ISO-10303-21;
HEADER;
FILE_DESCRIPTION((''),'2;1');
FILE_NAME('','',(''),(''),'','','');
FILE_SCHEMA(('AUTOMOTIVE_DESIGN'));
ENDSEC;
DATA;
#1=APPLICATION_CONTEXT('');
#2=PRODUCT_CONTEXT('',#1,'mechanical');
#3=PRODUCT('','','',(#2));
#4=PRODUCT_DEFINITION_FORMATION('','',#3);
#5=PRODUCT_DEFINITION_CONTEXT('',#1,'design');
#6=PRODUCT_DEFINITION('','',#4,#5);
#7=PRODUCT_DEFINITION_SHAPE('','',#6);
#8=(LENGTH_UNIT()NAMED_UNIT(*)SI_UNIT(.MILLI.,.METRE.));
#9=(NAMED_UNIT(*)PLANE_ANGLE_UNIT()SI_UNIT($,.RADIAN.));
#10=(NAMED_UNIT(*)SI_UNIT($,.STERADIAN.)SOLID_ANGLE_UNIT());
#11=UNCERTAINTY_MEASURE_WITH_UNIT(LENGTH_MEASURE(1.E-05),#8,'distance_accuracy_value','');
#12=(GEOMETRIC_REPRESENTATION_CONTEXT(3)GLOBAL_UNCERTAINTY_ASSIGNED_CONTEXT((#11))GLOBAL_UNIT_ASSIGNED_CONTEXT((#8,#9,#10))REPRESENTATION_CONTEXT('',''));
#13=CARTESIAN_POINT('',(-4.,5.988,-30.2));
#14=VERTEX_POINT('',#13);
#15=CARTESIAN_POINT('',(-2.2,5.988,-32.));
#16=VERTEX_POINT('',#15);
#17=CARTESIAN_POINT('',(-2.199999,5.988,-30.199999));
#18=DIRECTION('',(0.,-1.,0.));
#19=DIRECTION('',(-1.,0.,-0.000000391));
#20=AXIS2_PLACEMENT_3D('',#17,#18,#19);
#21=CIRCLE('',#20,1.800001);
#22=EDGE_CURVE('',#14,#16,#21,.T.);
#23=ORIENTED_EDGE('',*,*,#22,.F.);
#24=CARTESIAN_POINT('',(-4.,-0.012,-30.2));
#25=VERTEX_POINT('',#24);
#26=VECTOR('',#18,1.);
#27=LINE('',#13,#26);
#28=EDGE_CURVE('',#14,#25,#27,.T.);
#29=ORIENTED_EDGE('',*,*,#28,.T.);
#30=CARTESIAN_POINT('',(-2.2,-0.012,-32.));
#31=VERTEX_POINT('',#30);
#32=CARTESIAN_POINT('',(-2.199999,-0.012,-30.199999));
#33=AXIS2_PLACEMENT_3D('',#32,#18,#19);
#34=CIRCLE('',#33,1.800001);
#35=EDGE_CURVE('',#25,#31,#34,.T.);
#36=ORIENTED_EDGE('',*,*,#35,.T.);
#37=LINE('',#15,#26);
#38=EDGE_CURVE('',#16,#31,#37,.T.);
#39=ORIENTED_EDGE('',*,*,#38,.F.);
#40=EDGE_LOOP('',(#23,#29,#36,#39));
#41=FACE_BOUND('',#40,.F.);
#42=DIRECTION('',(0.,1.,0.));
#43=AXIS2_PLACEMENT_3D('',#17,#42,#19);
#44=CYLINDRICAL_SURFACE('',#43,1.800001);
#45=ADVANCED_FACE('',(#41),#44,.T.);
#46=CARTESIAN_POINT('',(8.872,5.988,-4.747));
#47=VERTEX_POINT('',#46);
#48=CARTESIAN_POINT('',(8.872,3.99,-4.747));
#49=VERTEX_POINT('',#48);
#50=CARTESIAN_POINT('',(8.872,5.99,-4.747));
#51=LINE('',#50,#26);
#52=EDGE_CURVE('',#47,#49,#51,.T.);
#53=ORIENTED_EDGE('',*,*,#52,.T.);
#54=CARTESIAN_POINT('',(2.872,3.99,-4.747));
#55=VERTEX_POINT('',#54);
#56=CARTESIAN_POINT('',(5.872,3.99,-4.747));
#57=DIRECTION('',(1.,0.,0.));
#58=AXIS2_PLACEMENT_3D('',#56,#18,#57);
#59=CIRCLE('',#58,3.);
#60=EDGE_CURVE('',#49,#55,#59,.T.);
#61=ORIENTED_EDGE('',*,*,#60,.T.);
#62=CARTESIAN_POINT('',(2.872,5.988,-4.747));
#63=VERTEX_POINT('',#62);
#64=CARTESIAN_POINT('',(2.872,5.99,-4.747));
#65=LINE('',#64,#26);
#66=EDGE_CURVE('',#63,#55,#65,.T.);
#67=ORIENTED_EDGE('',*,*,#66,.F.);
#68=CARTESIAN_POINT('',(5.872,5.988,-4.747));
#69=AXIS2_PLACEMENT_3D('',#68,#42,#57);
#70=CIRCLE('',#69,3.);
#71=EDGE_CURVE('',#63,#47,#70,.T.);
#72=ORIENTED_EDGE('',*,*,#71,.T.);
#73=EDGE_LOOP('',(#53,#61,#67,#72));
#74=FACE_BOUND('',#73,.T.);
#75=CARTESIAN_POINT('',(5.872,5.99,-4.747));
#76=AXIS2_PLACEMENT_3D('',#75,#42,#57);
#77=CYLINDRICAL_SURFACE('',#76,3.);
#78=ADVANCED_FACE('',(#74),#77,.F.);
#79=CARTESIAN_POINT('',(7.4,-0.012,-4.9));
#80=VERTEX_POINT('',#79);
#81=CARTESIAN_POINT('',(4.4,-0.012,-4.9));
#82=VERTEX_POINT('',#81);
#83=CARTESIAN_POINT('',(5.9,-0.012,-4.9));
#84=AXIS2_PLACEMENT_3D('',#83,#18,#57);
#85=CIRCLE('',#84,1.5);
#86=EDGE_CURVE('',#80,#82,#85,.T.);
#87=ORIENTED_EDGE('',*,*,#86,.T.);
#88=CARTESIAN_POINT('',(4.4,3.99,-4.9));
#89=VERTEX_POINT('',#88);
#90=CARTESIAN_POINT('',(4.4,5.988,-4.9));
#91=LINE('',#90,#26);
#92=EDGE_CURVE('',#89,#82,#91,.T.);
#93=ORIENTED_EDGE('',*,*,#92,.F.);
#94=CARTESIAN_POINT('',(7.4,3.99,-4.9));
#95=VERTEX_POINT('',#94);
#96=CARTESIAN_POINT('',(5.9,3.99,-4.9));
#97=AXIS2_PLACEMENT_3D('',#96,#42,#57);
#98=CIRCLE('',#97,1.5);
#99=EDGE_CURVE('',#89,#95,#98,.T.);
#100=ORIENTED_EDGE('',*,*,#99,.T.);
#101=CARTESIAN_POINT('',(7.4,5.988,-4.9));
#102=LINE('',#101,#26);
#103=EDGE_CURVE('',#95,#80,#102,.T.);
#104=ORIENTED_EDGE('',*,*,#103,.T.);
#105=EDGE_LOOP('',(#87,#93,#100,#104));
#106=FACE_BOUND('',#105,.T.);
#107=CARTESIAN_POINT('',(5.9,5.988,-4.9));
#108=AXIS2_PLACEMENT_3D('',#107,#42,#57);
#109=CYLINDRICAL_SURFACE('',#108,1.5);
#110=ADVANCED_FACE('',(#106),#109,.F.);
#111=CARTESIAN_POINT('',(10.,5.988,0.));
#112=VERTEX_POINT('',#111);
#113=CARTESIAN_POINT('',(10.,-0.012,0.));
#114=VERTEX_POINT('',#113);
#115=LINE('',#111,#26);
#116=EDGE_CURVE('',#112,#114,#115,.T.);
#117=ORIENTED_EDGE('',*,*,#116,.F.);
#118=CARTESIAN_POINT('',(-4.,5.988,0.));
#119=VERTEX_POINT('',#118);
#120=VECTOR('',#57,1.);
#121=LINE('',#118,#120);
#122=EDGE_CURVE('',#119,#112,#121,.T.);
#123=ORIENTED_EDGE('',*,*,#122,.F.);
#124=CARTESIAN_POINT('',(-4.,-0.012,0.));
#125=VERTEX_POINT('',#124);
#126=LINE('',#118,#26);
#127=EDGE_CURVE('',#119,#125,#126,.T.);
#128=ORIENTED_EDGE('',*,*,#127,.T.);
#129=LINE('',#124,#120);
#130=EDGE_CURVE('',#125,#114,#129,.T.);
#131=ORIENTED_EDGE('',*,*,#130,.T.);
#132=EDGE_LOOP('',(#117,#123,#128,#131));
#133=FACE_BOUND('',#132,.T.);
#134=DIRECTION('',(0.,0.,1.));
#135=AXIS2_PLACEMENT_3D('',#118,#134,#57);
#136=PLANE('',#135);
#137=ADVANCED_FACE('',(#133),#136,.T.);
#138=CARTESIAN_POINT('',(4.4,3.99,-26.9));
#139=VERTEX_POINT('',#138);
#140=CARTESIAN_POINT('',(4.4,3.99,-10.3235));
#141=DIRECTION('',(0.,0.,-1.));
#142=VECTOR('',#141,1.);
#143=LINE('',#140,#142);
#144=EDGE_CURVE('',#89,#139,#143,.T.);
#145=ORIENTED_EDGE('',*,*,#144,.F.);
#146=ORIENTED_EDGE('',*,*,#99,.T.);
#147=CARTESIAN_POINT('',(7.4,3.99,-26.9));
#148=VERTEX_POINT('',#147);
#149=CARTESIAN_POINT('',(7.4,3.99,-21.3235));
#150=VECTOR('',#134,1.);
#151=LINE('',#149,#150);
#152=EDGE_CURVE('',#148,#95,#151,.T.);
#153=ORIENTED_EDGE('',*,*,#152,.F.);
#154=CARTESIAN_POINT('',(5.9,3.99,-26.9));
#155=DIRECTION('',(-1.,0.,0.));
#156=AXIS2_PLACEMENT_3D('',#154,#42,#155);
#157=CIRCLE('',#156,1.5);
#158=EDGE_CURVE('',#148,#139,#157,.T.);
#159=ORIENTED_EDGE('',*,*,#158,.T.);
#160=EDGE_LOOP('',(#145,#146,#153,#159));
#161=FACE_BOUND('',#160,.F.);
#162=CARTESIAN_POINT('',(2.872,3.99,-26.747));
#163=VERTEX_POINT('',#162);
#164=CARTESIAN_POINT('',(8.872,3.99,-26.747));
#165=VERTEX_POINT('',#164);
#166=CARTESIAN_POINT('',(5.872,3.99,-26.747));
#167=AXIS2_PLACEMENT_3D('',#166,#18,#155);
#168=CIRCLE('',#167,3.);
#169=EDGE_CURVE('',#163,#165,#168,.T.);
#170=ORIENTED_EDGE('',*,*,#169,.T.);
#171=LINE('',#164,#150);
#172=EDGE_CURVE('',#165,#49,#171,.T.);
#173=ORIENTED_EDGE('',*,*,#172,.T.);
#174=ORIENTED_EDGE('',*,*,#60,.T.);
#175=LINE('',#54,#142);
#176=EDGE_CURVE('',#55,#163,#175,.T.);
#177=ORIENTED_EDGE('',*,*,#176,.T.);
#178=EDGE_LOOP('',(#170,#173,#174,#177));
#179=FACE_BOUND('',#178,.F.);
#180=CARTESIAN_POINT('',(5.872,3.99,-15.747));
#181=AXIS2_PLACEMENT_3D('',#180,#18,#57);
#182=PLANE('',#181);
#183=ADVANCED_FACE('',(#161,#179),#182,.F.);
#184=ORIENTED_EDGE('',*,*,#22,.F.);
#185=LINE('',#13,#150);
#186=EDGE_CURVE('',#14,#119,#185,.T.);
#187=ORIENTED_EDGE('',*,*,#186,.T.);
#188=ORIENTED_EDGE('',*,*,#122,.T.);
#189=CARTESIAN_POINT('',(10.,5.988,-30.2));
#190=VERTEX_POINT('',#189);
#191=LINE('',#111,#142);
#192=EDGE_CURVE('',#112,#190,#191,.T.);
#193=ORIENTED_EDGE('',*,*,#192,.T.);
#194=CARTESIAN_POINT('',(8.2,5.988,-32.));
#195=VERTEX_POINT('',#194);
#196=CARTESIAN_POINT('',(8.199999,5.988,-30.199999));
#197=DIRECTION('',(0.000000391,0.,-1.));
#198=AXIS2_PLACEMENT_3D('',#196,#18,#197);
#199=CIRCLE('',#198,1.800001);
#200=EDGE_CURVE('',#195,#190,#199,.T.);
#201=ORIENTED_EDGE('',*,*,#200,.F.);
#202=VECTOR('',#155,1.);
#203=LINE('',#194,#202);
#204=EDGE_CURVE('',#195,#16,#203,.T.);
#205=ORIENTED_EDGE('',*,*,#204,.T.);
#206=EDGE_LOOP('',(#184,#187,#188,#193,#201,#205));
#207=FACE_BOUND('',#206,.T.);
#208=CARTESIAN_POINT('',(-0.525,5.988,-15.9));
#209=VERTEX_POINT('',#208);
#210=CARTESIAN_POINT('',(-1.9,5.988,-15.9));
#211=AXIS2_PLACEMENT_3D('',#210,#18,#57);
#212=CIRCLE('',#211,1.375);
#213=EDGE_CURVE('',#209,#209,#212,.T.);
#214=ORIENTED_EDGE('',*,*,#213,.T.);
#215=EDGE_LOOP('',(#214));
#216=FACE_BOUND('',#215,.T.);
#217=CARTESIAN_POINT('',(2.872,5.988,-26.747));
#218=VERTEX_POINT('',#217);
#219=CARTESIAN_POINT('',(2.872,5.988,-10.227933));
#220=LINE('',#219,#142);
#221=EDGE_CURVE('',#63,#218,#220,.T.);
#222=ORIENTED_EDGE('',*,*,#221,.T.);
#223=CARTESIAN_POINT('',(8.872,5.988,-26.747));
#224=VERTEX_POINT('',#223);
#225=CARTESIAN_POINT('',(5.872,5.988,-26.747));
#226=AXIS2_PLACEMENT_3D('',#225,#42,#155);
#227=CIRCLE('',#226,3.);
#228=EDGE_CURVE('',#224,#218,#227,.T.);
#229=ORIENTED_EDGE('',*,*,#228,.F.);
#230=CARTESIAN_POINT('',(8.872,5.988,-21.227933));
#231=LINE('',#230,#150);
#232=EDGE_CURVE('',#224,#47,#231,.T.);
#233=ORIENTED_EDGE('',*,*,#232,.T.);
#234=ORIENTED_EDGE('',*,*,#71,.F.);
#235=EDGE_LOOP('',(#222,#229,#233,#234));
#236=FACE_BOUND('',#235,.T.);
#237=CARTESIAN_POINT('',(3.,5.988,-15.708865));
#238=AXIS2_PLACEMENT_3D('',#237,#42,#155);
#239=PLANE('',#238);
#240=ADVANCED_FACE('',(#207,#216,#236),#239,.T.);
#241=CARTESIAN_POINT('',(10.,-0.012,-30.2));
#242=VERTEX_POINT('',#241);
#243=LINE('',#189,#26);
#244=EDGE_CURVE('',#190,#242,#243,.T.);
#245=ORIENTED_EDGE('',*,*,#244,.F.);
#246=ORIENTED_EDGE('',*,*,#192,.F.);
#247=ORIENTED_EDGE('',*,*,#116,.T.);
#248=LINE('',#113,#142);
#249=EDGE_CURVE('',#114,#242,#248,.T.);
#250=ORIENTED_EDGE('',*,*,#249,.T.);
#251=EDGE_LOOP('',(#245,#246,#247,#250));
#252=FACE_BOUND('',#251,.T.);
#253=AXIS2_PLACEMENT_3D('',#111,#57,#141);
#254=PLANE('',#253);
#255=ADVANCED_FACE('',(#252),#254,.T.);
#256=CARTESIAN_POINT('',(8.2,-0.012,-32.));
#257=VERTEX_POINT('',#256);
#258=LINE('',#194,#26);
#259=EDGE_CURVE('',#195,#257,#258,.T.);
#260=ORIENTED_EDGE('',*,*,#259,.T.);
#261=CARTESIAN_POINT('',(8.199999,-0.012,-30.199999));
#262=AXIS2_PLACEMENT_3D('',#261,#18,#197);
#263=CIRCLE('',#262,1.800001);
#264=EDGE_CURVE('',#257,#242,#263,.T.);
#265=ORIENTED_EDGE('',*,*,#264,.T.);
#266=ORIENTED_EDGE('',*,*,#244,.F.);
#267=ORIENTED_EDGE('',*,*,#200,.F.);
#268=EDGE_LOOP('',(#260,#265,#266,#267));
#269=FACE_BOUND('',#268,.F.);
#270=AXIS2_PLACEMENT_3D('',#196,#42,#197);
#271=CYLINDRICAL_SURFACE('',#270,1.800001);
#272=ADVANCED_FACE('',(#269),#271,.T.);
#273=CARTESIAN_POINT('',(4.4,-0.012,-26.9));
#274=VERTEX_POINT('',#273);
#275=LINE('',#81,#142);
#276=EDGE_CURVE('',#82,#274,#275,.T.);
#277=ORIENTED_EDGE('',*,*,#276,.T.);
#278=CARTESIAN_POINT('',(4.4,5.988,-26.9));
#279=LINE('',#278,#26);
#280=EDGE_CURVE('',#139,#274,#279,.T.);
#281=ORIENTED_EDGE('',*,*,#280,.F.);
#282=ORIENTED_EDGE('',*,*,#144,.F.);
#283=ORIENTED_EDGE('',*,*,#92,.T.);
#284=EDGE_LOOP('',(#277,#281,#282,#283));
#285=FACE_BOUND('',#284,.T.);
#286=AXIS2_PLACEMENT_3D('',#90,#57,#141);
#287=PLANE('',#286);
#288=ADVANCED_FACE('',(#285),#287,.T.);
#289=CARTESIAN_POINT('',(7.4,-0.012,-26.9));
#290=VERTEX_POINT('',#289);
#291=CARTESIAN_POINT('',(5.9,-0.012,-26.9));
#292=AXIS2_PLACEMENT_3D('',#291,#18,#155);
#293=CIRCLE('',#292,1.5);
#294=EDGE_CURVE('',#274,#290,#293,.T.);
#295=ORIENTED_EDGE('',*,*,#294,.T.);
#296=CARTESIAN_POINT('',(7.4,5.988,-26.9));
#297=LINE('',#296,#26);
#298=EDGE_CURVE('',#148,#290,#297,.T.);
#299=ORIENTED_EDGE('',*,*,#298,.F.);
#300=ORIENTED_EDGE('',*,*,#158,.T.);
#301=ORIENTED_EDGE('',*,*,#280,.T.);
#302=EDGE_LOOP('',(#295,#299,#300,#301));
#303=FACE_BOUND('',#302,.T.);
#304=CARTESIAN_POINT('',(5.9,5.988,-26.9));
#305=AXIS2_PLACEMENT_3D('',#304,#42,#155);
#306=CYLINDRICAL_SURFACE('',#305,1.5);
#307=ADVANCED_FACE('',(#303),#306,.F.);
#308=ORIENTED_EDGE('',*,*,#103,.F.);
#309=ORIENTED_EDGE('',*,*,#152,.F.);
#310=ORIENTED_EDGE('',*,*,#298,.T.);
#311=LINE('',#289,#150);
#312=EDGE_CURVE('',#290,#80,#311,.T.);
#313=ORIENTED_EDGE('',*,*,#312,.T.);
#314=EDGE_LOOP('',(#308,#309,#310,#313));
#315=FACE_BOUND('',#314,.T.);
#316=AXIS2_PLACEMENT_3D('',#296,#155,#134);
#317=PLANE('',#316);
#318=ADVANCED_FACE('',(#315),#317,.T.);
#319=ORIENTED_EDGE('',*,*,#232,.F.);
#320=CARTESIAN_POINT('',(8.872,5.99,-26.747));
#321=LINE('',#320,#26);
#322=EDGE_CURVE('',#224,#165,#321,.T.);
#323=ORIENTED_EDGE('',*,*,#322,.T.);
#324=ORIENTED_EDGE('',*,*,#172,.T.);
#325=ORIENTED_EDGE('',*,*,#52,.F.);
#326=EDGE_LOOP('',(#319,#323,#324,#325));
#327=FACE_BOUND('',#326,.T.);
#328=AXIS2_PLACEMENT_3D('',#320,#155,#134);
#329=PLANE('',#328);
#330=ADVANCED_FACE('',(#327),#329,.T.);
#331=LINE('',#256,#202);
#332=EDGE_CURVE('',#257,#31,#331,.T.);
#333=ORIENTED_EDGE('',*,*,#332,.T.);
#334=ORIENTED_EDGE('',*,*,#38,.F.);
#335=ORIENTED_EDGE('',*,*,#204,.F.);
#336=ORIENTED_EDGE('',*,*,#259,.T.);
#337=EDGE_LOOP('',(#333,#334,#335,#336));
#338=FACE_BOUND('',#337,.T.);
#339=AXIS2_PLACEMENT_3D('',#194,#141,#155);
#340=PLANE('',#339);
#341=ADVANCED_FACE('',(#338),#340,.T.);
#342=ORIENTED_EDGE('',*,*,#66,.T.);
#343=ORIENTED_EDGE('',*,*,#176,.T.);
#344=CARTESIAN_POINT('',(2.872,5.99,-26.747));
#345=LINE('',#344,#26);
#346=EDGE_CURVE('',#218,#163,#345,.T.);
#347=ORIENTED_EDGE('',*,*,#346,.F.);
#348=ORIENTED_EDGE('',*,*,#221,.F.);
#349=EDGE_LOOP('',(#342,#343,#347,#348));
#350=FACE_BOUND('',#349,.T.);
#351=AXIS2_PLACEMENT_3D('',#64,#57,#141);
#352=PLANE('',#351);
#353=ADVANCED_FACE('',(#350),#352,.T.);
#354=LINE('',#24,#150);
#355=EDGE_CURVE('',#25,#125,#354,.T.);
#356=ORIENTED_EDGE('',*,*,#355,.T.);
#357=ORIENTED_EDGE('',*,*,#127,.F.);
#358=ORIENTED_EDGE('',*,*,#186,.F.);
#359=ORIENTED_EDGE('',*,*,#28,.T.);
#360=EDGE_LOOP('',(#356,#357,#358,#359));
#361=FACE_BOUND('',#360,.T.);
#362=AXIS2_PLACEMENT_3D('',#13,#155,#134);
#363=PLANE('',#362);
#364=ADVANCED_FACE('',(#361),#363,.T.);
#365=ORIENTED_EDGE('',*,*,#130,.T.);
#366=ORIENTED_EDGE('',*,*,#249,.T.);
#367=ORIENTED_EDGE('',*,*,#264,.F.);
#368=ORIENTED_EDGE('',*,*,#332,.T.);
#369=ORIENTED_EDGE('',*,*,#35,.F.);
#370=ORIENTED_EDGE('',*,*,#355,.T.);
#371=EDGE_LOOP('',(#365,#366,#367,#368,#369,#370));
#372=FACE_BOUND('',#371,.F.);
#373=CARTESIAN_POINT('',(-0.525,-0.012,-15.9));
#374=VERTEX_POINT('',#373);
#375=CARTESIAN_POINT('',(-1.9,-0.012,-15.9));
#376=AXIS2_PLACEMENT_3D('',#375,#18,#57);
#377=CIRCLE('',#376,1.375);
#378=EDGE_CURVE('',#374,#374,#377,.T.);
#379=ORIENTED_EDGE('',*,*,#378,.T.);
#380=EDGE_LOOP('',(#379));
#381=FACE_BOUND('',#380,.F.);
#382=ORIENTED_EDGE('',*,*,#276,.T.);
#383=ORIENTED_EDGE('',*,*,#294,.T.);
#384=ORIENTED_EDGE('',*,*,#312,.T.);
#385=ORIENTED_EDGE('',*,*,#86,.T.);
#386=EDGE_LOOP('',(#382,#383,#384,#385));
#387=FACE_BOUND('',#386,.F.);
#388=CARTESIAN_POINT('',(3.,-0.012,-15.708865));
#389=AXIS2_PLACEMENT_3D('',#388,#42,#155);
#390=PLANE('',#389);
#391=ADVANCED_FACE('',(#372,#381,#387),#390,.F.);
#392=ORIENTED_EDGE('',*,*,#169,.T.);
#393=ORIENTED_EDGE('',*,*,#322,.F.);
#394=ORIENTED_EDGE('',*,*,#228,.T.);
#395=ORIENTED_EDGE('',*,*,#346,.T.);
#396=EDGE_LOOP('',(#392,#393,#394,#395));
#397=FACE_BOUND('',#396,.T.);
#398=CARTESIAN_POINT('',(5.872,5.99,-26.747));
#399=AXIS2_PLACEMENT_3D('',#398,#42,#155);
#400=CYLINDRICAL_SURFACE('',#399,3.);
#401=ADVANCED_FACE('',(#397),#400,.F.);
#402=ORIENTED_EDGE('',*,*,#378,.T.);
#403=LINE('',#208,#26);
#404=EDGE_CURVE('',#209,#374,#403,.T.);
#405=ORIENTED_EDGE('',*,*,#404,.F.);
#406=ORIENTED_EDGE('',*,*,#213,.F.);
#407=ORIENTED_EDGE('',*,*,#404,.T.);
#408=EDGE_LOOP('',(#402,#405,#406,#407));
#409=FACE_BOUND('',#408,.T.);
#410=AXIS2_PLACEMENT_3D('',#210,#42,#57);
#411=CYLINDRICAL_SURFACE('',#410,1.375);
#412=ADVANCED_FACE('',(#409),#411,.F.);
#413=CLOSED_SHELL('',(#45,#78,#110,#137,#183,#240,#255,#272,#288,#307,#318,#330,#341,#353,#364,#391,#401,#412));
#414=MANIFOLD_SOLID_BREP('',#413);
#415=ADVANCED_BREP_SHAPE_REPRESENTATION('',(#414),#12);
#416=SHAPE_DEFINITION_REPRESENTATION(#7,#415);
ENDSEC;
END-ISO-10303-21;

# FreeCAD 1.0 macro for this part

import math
import FreeCAD as App
import Part
import Sketcher
from FreeCAD import Vector
Q = App.Units.Quantity

doc = App.newDocument("Part")
body = doc.addObject("PartDesign::Body", "Body")

# Sketch on XZ plane
sketch1 = body.newObject("Sketcher::SketchObject", "Sketch")
sketch1.AttachmentSupport = (doc.getObject("XZ_Plane"), [""])
sketch1.MapMode = "FlatFace"
sketch1.addGeometry([
    Part.ArcOfCircle(Part.Circle(Vector(5.9, 35, 0), Vector(0, 0, 1), 3), math.radians(0), math.radians(180)),
    Part.LineSegment(Vector(2.9, 35, 0), Vector(2.9, 13, 0)),
    Part.ArcOfCircle(Part.Circle(Vector(5.9, 13, 0), Vector(0, 0, 1), 3), math.radians(180), math.radians(360)),
    Part.LineSegment(Vector(8.9, 13, 0), Vector(8.9, 35, 0)),
], False)
sketch1.addConstraint([
    Sketcher.Constraint("Tangent", 0, 2, 1, 1),
    Sketcher.Constraint("Tangent", 1, 2, 2, 1),
    Sketcher.Constraint("Tangent", 2, 2, 3, 1),
    Sketcher.Constraint("Tangent", 3, 2, 0, 1),
    Sketcher.Constraint("Vertical", 1),
    Sketcher.Constraint("Vertical", 3),
    Sketcher.Constraint("Radius", 0, Q("3 mm")),
    Sketcher.Constraint("DistanceY", 1, 2, 1, 1, Q("22 mm")),
    Sketcher.Constraint("DistanceY", -1, 1, 0, 3, Q("35 mm")),
    Sketcher.Constraint("DistanceX", -1, 1, 0, 3, Q("5.9 mm")),
])
pad1 = body.newObject("PartDesign::Pad", "Pad")
pad1.Profile = sketch1
pad1.Length = 2
body2 = doc.addObject("PartDesign::Body", "Body001")
doc.recompute()

body.Placement = App.Placement(Vector(-0.028, 0.002, -39.747), App.Rotation(Vector(0, 0, 1), 0))
boolean = body2.newObject("PartDesign::Boolean", "Boolean")
boolean.Type = "Fuse"
boolean.addObjects([body])
body3 = doc.addObject("PartDesign::Body", "Body002")

# Sketch on XZ plane
sketch2 = body3.newObject("Sketcher::SketchObject", "Sketch001")
sketch2.AttachmentSupport = (doc.getObject("XZ_Plane002"), [""])
sketch2.MapMode = "FlatFace"
sketch2.addGeometry([
    Part.LineSegment(Vector(10, 0, 0), Vector(-4, 0, 0)),  # 0
    Part.LineSegment(Vector(-4, 0, 0), Vector(-4, -30.2, 0)),  # 1
    Part.ArcOfCircle(Part.Circle(Vector(-2.199999, -30.199999, 0), Vector(0, 0, 1), 1.800001), math.radians(-179.999978), math.radians(-90.000022)),  # 2
    Part.LineSegment(Vector(-2.2, -32, 0), Vector(8.2, -32, 0)),  # 3
    Part.ArcOfCircle(Part.Circle(Vector(8.199999, -30.199999, 0), Vector(0, 0, 1), 1.800001), math.radians(-89.999978), math.radians(-0.000022)),  # 4
    Part.LineSegment(Vector(10, -30.2, 0), Vector(10, 0, 0)),  # 5
    Part.Circle(Vector(-1.9, -15.9, 0), Vector(0, 0, 1), 1.375),  # 6
    Part.LineSegment(Vector(4.4, -26.9, 0), Vector(4.4, -4.9, 0)),  # 7
    Part.ArcOfCircle(Part.Circle(Vector(5.9, -4.9, 0), Vector(0, 0, 1), 1.5), math.radians(0), math.radians(180)),  # 8
    Part.LineSegment(Vector(7.4, -4.9, 0), Vector(7.4, -26.9, 0)),  # 9
    Part.ArcOfCircle(Part.Circle(Vector(5.9, -26.9, 0), Vector(0, 0, 1), 1.5), math.radians(180), math.radians(360)),  # 10
], False)
sketch2.addConstraint([
    Sketcher.Constraint("Coincident", 0, 2, 1, 1),
    Sketcher.Constraint("Tangent", 1, 2, 2, 1),
    Sketcher.Constraint("Tangent", 2, 2, 3, 1),
    Sketcher.Constraint("Tangent", 3, 2, 4, 1),
    Sketcher.Constraint("Tangent", 4, 2, 5, 1),
    Sketcher.Constraint("Coincident", 5, 2, 0, 1),
    Sketcher.Constraint("Tangent", 7, 2, 8, 2),
    Sketcher.Constraint("Tangent", 8, 1, 9, 1),
    Sketcher.Constraint("Tangent", 9, 2, 10, 2),
    Sketcher.Constraint("Tangent", 10, 1, 7, 1),
    Sketcher.Constraint("Horizontal", 0),
    Sketcher.Constraint("Vertical", 1),
    Sketcher.Constraint("Horizontal", 3),
    Sketcher.Constraint("Vertical", 5),
    Sketcher.Constraint("Vertical", 7),
    Sketcher.Constraint("Vertical", 9),
    Sketcher.Constraint("Equal", 2, 4),
    Sketcher.Constraint("PointOnObject", 0, 2, -1),
    Sketcher.Constraint("Radius", 2, Q("1.800001 mm")),
    Sketcher.Constraint("Radius", 8, Q("1.5 mm")),
    Sketcher.Constraint("Diameter", 6, Q("2.75 mm")),
    Sketcher.Constraint("DistanceX", 0, 2, 0, 1, Q("14 mm")),
    Sketcher.Constraint("DistanceY", 7, 1, 7, 2, Q("22 mm")),
    Sketcher.Constraint("DistanceY", 1, 2, 1, 1, Q("30.2 mm")),
    Sketcher.Constraint("DistanceX", 0, 2, -1, 1, Q("4 mm")),
    Sketcher.Constraint("DistanceY", 6, 3, 8, 3, Q("11 mm")),
    Sketcher.Constraint("DistanceX", 6, 3, -1, 1, Q("1.9 mm")),
    Sketcher.Constraint("DistanceY", 6, 3, -1, 1, Q("15.9 mm")),
    Sketcher.Constraint("DistanceX", -1, 1, 8, 3, Q("5.9 mm")),
])
pad2 = body3.newObject("PartDesign::Pad", "Pad001")
pad2.Profile = sketch2
pad2.Length = 6
doc.recompute()

boolean2 = body3.newObject("PartDesign::Boolean", "Boolean001")
boolean2.Type = "Cut"
boolean2.addObjects([body2])
body4 = doc.addObject("PartDesign::Body", "Body003")
doc.recompute()

body3.Placement = App.Placement(Vector(0, 5.988, 0), App.Rotation(Vector(0, 0, 1), 0))
boolean3 = body4.newObject("PartDesign::Boolean", "Boolean002")
boolean3.Type = "Fuse"
boolean3.addObjects([body3])

doc.recompute()
